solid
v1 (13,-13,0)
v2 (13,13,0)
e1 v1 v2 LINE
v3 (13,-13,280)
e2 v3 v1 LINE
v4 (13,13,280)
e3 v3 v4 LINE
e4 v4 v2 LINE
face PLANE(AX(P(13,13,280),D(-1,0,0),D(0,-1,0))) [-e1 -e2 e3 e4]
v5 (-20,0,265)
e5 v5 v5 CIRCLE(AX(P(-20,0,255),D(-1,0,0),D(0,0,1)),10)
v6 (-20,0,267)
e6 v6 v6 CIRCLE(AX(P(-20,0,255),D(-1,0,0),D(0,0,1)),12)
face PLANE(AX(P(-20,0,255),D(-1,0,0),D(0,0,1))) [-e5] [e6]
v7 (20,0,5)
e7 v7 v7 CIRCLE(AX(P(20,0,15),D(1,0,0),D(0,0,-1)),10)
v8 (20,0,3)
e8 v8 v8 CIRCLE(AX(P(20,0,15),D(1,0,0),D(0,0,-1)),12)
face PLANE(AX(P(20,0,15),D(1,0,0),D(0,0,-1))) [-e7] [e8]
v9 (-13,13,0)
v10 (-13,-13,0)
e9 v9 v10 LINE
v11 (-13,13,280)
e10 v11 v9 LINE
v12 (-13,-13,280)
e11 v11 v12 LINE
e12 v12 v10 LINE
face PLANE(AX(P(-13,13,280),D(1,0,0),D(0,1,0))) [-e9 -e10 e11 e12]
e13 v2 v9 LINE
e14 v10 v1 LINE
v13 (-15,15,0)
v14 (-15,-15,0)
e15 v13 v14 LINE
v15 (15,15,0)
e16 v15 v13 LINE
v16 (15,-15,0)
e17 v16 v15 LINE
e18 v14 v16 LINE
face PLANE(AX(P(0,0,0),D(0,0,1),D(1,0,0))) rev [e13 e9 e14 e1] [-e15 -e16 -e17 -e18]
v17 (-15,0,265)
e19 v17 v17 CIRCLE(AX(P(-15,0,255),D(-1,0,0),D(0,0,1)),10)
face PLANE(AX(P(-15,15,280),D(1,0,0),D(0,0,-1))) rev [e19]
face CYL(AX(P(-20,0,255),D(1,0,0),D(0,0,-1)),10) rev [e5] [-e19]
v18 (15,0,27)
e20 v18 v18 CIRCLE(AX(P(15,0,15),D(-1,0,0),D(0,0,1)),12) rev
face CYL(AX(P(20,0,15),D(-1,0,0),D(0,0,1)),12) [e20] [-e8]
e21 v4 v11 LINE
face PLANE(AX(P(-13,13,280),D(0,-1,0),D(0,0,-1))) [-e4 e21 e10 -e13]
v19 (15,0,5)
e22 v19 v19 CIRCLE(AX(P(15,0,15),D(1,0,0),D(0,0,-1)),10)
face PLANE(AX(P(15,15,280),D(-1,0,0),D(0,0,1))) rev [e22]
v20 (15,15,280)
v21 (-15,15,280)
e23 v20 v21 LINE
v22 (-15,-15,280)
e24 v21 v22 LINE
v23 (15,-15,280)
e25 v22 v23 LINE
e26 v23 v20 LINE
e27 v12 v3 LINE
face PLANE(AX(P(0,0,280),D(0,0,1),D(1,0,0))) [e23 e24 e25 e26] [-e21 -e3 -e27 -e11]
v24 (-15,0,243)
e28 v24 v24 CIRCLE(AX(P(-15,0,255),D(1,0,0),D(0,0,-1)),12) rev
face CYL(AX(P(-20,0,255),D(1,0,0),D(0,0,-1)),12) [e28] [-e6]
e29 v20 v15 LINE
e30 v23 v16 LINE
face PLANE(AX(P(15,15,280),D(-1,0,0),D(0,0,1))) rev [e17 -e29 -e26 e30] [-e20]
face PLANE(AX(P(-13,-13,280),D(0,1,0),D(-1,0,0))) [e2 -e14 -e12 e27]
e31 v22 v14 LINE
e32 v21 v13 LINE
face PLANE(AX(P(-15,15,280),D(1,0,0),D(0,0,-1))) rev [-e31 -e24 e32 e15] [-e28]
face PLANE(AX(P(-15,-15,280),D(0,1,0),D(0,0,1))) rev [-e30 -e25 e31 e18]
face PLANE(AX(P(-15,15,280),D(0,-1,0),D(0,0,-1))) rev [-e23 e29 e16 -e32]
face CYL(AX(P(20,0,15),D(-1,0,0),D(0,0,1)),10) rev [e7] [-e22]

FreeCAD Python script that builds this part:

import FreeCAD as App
import Part
import Sketcher
from FreeCAD import Vector


def add_polygon(sketch, points):
    """Adds a closed chain of lines whose ends are joined by coincident constraints."""
    first, n = sketch.GeometryCount, len(points)
    for a, b in zip(points, points[1:] + points[:1]):
        sketch.addGeometry(Part.LineSegment(App.Vector(*a, 0), App.Vector(*b, 0)), False)
    for i in range(n):
        sketch.addConstraint(Sketcher.Constraint("Coincident", first + i, 2, first + (i + 1) % n, 1))

doc = App.newDocument("Part")
params = doc.addObject("Spreadsheet::Sheet", "Params")
for row, (alias, value) in enumerate([
    ("sketch1_width", "30 mm"),
    ("sketch1_width2", "26 mm"),
    ("pad1_length", "280 mm"),
    ("sketch2_diameter", "24 mm"),
    ("sketch2_diameter2", "20 mm"),
    ("pad2_length", "5 mm"),
    ("sketch3_diameter", "24 mm"),
    ("sketch3_diameter2", "20 mm"),
    ("pad3_length", "5 mm"),
], start=1):
    params.set(f"A{row}", alias)
    params.set(f"B{row}", "=" + value)
    params.setAlias(f"B{row}", alias)

body = doc.addObject("PartDesign::Body", "Body")

# Sketch on XY plane
sketch1 = body.newObject("Sketcher::SketchObject", "Sketch")
sketch1.AttachmentSupport = (doc.getObject("XY_Plane"), [""])
sketch1.MapMode = "FlatFace"
add_polygon(sketch1, [(-15, 15), (-15, -15), (15, -15), (15, 15)])  # lines 0-3
add_polygon(sketch1, [(13, -13), (-13, -13), (-13, 13), (13, 13)])  # lines 4-7
sketch1.addConstraint([
    Sketcher.Constraint("Vertical", 0),
    Sketcher.Constraint("Horizontal", 1),
    Sketcher.Constraint("Vertical", 2),
    Sketcher.Constraint("Horizontal", 3),
    Sketcher.Constraint("Horizontal", 4),
    Sketcher.Constraint("Vertical", 5),
    Sketcher.Constraint("Horizontal", 6),
    Sketcher.Constraint("Vertical", 7),
    Sketcher.Constraint("Symmetric", 0, 2, 2, 2, -1, 1),
    Sketcher.Constraint("Symmetric", 4, 2, 6, 2, -1, 1),
    Sketcher.Constraint("Equal", 3, 0),
    Sketcher.Constraint("Equal", 6, 5),
    Sketcher.Constraint("DistanceX", 1, 1, 1, 2, 30.0),
    Sketcher.Constraint("DistanceX", 4, 2, 4, 1, 26.0),
])
sketch1.setExpression("Constraints[20]", "Params.sketch1_width")
sketch1.setExpression("Constraints[21]", "Params.sketch1_width2")
pad1 = body.newObject("PartDesign::Pad", "Pad")
pad1.Profile = sketch1
pad1.setExpression("Length", "Params.pad1_length")

# Sketch on YZ plane
sketch2 = body.newObject("Sketcher::SketchObject", "Sketch001")
sketch2.AttachmentSupport = (doc.getObject("YZ_Plane"), [""])
sketch2.MapMode = "FlatFace"
sketch2.AttachmentOffset = App.Placement(Vector(0, 0, 15), App.Rotation())
sketch2.addGeometry([
    Part.Circle(Vector(0, 15, 0), Vector(0, 0, 1), 12),
    Part.Circle(Vector(0, 15, 0), Vector(0, 0, 1), 10),
], False)
sketch2.addConstraint([
    Sketcher.Constraint("Coincident", 1, 3, 0, 3),
    Sketcher.Constraint("PointOnObject", 0, 3, -2),
    Sketcher.Constraint("Diameter", 0, 24.0),
    Sketcher.Constraint("Diameter", 1, 20.0),
    Sketcher.Constraint("DistanceY", -1, 1, 0, 3, 15.0),
])
sketch2.setExpression("Constraints[2]", "Params.sketch2_diameter")
sketch2.setExpression("Constraints[3]", "Params.sketch2_diameter2")
pad2 = body.newObject("PartDesign::Pad", "Pad001")
pad2.Profile = sketch2
pad2.setExpression("Length", "Params.pad2_length")

# Sketch on YZ plane
sketch3 = body.newObject("Sketcher::SketchObject", "Sketch002")
sketch3.AttachmentSupport = (doc.getObject("YZ_Plane"), [""])
sketch3.MapMode = "FlatFace"
sketch3.AttachmentOffset = App.Placement(Vector(0, 0, -15), App.Rotation())
sketch3.addGeometry([
    Part.Circle(Vector(0, 255, 0), Vector(0, 0, 1), 12),
    Part.Circle(Vector(0, 255, 0), Vector(0, 0, 1), 10),
], False)
sketch3.addConstraint([
    Sketcher.Constraint("Coincident", 1, 3, 0, 3),
    Sketcher.Constraint("PointOnObject", 0, 3, -2),
    Sketcher.Constraint("Diameter", 0, 24.0),
    Sketcher.Constraint("Diameter", 1, 20.0),
    Sketcher.Constraint("DistanceY", -1, 1, 0, 3, 255.0),
])
sketch3.setExpression("Constraints[2]", "Params.sketch3_diameter")
sketch3.setExpression("Constraints[3]", "Params.sketch3_diameter2")
pad3 = body.newObject("PartDesign::Pad", "Pad002")
pad3.Profile = sketch3
pad3.setExpression("Length", "Params.pad3_length")
pad3.Reversed = True

doc.recompute()
